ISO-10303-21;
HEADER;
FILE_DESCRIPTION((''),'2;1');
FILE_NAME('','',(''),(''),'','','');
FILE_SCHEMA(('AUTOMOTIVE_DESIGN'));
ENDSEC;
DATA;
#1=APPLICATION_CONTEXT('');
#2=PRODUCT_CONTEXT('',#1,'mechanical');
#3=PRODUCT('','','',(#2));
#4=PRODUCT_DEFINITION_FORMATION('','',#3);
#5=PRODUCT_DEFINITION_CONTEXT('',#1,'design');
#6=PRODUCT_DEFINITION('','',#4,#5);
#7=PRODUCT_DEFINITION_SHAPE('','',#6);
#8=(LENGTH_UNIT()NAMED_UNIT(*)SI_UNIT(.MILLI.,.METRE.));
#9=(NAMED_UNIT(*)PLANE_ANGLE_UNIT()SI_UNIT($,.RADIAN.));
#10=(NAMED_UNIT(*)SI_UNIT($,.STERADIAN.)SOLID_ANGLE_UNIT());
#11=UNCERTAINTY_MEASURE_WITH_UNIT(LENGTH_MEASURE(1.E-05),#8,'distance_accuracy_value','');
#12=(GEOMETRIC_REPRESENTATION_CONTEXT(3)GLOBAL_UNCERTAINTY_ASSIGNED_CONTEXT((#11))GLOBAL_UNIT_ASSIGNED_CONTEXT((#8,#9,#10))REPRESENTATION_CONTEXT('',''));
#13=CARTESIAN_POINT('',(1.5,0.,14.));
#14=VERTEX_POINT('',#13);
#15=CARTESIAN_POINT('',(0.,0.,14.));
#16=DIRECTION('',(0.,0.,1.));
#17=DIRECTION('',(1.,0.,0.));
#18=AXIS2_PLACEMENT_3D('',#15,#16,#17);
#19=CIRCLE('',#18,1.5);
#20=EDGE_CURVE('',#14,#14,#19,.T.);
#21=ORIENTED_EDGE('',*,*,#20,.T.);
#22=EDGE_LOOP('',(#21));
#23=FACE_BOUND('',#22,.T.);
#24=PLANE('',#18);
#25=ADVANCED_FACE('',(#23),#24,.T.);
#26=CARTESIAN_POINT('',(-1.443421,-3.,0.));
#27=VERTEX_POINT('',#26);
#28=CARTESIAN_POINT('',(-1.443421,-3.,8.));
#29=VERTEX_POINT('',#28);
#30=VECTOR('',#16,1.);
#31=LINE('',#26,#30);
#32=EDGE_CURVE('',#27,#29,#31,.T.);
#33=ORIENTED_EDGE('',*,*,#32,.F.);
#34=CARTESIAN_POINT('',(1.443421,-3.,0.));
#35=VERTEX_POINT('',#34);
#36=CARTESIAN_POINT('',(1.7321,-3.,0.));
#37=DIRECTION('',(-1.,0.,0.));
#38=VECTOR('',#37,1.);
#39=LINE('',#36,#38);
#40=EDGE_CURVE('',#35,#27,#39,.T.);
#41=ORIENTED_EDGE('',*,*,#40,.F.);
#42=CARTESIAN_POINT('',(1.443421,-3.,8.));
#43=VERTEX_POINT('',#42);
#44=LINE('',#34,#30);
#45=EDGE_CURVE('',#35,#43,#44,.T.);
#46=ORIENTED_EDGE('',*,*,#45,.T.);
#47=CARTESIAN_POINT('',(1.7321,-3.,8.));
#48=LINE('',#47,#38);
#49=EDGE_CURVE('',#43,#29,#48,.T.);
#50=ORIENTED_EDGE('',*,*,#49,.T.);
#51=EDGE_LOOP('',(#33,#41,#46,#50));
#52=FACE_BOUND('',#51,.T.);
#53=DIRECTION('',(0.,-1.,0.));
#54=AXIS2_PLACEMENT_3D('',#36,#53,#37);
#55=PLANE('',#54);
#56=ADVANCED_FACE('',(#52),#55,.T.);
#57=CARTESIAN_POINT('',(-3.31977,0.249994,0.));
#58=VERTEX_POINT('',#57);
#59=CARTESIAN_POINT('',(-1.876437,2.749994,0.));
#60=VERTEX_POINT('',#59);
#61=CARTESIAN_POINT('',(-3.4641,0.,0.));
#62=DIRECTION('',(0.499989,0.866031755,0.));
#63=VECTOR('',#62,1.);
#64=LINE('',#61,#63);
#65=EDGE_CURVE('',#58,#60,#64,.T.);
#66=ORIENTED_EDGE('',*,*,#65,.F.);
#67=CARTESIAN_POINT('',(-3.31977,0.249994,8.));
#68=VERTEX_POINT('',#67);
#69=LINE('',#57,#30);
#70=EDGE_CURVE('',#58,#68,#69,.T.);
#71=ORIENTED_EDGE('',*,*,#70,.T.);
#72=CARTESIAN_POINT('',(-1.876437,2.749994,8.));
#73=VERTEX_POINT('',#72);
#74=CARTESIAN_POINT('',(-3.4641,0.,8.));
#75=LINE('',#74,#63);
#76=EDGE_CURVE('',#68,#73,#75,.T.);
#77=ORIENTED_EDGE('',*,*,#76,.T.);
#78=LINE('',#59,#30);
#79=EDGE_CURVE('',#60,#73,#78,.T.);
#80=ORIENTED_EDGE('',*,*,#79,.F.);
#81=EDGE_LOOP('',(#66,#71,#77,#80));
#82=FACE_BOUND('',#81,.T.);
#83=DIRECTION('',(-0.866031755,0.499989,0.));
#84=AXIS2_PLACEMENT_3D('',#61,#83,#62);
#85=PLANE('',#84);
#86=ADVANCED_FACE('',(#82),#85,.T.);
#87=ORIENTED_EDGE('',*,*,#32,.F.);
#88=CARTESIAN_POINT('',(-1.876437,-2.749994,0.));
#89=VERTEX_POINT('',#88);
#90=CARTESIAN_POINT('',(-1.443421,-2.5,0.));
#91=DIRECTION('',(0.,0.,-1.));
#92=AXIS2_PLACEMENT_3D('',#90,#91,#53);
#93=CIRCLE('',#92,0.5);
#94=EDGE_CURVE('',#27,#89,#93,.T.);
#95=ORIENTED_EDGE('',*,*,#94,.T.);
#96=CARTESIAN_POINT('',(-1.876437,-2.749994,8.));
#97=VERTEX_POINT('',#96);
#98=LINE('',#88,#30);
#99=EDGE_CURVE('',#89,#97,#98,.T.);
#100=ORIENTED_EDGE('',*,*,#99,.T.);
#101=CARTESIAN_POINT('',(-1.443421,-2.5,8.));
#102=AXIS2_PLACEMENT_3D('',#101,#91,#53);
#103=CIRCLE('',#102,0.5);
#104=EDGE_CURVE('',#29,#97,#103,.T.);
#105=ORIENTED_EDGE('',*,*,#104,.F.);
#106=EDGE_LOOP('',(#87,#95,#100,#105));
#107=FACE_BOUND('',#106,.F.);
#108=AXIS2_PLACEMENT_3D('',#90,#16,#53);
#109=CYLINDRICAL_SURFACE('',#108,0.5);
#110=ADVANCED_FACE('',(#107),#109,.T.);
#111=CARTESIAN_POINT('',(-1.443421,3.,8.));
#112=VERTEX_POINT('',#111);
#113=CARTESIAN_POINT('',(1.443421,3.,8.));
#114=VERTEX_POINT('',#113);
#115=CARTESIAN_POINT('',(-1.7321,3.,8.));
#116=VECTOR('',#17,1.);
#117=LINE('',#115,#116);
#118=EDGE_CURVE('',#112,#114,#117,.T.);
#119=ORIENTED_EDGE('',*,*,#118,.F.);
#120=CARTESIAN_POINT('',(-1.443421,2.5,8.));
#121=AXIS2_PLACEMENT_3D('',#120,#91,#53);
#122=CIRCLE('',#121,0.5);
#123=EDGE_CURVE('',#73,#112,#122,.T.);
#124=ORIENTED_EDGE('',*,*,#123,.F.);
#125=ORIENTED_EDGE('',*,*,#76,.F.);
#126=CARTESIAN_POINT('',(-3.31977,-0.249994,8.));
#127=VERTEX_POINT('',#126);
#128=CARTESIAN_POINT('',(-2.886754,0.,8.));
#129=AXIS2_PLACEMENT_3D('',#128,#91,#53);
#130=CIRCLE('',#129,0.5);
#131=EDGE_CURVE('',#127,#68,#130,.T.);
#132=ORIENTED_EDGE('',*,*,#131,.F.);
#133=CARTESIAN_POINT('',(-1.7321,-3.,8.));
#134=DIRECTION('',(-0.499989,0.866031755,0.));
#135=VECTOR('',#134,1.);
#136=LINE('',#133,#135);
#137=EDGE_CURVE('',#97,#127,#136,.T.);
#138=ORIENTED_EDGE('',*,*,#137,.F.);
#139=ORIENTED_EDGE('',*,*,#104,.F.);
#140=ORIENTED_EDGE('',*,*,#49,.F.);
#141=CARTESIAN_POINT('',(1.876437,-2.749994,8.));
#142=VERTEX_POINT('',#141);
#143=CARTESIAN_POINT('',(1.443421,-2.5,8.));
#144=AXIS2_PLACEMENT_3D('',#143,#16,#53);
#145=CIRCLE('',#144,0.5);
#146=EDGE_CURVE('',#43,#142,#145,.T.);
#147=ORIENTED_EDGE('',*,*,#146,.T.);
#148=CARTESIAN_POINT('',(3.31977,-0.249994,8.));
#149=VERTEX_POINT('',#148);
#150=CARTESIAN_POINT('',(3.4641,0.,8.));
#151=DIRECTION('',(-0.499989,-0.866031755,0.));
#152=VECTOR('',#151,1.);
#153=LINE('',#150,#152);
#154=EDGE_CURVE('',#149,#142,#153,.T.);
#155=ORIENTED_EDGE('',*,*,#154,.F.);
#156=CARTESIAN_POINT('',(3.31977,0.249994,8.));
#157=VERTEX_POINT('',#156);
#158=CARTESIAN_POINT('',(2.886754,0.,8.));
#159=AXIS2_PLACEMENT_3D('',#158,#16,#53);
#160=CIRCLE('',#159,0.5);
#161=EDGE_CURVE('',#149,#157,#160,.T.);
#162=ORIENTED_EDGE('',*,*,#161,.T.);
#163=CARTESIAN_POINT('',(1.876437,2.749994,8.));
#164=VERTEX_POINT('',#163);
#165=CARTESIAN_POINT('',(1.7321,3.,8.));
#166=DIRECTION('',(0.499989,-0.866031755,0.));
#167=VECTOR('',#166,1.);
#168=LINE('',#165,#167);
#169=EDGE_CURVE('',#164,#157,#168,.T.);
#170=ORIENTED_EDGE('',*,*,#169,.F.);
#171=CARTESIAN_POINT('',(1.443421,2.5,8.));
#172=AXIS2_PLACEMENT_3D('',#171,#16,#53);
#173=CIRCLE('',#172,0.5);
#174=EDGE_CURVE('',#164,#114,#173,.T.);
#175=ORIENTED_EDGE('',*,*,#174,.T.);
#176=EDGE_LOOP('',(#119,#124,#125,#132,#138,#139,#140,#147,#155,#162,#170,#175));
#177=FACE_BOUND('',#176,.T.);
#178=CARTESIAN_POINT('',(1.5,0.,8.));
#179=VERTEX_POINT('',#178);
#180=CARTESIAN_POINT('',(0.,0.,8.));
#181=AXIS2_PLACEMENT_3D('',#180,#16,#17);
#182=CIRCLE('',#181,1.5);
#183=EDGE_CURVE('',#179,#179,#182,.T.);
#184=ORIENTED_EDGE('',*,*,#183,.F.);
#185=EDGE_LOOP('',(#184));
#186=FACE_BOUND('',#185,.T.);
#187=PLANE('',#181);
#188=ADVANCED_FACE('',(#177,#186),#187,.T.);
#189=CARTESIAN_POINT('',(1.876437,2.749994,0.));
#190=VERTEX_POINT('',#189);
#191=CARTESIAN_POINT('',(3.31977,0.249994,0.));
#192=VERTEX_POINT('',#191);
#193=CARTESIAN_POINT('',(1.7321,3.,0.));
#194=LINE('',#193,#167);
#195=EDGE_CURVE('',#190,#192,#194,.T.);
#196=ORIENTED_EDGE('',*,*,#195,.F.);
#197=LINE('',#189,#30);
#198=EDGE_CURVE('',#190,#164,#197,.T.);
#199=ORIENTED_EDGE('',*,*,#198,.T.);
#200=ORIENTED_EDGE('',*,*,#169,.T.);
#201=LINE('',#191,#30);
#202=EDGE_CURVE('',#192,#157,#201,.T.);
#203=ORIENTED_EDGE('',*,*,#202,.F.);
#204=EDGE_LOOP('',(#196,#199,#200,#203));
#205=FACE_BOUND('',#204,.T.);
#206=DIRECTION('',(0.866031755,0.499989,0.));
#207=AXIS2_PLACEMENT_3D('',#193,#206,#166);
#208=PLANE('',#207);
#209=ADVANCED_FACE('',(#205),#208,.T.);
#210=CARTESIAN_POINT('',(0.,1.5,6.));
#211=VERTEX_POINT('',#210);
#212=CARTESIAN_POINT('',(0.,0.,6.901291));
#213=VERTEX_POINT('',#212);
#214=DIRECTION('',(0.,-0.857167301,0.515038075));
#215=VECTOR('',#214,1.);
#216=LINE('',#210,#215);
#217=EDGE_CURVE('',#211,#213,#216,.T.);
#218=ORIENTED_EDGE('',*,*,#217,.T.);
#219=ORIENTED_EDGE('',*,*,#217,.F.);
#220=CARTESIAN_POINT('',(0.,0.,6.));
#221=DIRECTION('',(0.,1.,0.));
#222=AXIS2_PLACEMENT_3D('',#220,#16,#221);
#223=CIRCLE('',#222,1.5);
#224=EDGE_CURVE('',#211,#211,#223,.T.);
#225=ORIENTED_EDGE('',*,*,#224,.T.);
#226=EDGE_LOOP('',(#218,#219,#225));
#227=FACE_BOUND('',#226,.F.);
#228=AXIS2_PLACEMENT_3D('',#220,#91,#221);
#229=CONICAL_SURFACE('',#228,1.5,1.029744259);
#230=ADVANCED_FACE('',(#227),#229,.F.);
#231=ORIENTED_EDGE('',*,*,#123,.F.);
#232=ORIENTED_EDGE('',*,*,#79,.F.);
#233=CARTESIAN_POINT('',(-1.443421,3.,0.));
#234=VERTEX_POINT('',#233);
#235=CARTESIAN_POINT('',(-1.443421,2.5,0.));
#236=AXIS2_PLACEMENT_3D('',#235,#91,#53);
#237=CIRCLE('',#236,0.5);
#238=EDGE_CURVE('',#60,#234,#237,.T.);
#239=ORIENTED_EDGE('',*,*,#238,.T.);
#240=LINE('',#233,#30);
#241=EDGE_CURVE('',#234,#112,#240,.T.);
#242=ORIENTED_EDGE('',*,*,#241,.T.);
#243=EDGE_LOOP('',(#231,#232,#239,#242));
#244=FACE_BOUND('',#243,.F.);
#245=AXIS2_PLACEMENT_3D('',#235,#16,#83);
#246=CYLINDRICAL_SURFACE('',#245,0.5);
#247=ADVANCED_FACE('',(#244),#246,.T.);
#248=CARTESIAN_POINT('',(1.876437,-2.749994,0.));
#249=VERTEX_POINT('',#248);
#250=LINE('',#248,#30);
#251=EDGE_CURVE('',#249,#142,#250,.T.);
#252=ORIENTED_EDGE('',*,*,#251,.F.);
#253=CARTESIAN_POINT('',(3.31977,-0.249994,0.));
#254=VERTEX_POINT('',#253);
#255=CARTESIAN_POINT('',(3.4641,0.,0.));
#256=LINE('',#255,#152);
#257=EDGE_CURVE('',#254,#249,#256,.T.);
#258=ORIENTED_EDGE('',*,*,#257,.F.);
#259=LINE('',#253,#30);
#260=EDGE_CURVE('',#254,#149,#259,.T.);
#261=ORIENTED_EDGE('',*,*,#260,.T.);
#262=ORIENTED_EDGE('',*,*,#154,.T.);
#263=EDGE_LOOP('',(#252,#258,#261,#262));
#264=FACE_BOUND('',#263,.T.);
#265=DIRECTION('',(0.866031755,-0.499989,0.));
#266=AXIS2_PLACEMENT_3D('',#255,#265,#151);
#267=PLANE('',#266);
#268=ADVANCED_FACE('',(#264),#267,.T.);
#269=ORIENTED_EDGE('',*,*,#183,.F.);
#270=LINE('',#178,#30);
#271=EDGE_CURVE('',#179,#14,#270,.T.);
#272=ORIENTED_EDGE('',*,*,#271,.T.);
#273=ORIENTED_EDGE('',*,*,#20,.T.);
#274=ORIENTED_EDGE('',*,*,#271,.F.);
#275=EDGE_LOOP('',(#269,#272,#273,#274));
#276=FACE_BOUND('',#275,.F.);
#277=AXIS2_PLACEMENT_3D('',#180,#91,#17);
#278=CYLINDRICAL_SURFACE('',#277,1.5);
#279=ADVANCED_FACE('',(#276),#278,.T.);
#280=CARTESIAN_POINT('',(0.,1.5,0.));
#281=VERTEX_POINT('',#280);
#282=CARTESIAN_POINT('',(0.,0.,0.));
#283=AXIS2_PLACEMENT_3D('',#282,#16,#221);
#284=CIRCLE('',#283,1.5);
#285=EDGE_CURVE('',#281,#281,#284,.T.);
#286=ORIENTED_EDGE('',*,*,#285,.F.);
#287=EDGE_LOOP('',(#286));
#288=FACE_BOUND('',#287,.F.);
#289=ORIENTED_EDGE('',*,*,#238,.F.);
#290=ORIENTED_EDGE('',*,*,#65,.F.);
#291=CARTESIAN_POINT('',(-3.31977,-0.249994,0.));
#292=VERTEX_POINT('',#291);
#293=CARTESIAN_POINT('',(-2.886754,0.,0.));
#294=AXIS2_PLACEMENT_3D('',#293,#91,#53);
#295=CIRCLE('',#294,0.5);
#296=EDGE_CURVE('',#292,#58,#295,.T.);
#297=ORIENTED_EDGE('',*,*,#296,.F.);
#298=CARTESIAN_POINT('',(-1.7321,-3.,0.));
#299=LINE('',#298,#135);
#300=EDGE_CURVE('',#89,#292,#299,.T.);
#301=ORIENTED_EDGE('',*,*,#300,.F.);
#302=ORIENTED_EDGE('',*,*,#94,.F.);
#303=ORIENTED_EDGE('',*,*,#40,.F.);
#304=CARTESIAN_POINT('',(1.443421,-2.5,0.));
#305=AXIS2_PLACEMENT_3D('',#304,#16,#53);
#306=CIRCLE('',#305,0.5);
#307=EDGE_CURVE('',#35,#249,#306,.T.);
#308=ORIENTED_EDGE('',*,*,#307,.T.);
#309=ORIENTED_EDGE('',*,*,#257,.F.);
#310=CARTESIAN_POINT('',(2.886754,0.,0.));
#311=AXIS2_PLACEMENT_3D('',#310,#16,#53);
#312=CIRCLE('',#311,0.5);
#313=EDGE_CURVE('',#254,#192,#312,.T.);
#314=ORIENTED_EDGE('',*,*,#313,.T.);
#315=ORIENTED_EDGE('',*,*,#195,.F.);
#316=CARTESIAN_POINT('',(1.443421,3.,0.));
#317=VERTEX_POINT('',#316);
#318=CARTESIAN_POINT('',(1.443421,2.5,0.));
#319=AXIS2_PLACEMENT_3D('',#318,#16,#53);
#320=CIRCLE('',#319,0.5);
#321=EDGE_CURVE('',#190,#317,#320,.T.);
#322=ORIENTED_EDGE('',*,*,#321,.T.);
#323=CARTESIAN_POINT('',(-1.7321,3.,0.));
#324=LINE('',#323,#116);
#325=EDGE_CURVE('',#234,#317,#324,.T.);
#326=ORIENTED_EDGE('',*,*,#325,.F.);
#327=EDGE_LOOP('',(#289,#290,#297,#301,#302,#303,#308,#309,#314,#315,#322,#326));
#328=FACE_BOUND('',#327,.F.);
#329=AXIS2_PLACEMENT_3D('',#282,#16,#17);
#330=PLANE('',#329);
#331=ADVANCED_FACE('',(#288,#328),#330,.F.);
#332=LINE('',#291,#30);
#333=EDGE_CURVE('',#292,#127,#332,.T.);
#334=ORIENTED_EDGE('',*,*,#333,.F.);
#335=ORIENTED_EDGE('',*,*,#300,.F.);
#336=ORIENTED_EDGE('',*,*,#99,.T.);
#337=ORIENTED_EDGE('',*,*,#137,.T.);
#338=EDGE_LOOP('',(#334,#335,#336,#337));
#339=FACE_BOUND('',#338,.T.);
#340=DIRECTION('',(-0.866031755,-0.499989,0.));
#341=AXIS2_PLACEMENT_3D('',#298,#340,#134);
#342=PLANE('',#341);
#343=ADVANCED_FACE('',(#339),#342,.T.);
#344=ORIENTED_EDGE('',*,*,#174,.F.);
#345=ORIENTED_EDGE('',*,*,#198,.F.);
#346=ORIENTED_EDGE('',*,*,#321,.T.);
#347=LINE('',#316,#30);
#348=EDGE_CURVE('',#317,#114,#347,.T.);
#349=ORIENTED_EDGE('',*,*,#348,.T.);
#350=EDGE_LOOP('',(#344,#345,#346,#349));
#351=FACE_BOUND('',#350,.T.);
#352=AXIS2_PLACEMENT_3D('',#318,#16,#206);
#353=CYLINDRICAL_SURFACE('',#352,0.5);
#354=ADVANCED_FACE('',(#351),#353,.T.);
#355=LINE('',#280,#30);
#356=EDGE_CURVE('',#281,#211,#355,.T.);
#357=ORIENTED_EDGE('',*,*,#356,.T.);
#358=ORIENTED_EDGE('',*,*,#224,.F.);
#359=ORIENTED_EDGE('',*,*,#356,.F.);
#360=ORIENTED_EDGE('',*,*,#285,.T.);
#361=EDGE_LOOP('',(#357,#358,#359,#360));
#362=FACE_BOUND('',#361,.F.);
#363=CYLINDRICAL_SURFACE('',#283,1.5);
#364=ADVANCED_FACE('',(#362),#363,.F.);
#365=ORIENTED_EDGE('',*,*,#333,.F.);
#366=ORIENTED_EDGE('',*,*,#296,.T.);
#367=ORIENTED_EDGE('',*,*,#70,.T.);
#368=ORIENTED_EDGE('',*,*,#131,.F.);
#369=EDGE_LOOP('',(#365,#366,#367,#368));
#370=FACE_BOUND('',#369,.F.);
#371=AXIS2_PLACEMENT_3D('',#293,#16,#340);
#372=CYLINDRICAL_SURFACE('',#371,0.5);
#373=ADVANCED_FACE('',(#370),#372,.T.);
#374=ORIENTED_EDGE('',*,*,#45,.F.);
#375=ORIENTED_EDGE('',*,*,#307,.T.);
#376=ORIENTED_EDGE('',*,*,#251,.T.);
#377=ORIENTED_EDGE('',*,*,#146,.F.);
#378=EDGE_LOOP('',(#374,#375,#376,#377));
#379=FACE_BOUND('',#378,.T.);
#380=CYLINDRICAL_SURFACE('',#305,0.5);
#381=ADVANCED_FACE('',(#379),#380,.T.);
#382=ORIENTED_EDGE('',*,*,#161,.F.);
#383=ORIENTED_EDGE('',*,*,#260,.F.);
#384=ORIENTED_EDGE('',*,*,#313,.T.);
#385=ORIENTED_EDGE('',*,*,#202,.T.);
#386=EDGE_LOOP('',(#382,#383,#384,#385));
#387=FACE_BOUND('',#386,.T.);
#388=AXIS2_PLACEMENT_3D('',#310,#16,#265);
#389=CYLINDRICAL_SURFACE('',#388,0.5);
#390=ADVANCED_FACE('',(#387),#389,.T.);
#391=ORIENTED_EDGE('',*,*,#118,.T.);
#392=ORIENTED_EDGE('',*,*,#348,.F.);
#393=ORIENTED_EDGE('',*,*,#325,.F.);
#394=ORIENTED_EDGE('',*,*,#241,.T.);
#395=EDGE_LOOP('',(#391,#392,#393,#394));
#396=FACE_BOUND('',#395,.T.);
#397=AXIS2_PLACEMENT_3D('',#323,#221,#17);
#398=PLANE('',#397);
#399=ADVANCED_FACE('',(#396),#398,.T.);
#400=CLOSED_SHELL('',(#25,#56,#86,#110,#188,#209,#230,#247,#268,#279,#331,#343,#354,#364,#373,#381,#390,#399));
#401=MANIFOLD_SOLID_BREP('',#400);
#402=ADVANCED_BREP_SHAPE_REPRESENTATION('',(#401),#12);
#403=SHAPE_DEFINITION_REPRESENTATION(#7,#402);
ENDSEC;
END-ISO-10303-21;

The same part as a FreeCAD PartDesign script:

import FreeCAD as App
import Part
import Sketcher
from FreeCAD import Vector
Q = App.Units.Quantity


def edges_at(feature, points):
    """Names of the edges that pass closest to the given points."""
    edges = feature.Shape.Edges
    near = lambda p: min(range(len(edges)), key=lambda i: edges[i].distToShape(Part.Vertex(*p))[0])
    return sorted({f"Edge{near(p) + 1}" for p in points})


def add_polygon(sketch, points):
    """Adds a closed chain of lines whose ends are joined by coincident constraints."""
    first, n = sketch.GeometryCount, len(points)
    for a, b in zip(points, points[1:] + points[:1]):
        sketch.addGeometry(Part.LineSegment(App.Vector(*a, 0), App.Vector(*b, 0)), False)
    for i in range(n):
        sketch.addConstraint(Sketcher.Constraint("Coincident", first + i, 2, first + (i + 1) % n, 1))

doc = App.newDocument("Part")
body = doc.addObject("PartDesign::Body", "Body")

# Sketch on XY plane
sketch1 = body.newObject("Sketcher::SketchObject", "Sketch")
sketch1.AttachmentSupport = (doc.getObject("XY_Plane"), [""])
sketch1.MapMode = "FlatFace"
add_polygon(sketch1, [(-1.7321, -3), (1.7321, -3), (3.4641, 0), (1.7321, 3), (-1.7321, 3), (-3.4641, 0)])  # lines 0-5
sketch1.addConstraint(Sketcher.Constraint("Horizontal", 0))
sketch1.addConstraint(Sketcher.Constraint("Horizontal", 3))
sketch1.addConstraint(Sketcher.Constraint("Symmetric", 0, 2, 3, 2, -1, 1))
sketch1.addConstraint(Sketcher.Constraint("Symmetric", 1, 2, 4, 2, -1, 1))
sketch1.addConstraint(Sketcher.Constraint("PointOnObject", 1, 2, -1))
sketch1.addConstraint(Sketcher.Constraint("Parallel", 2, 5))
sketch1.addConstraint(Sketcher.Constraint("Vertical", 0, 2, 2, 2))
sketch1.addConstraint(Sketcher.Constraint("DistanceY", 0, 2, -1, 1, 3.0))
sketch1.addConstraint(Sketcher.Constraint("Angle", 1, Q("60.0007 deg")))
sketch1.addConstraint(Sketcher.Constraint("DistanceX", 0, 1, 0, 2, 3.4642))
pad1 = body.newObject("PartDesign::Pad", "Pad")
pad1.Profile = sketch1
pad1.Length = 8

# Sketch on XY plane
sketch2 = body.newObject("Sketcher::SketchObject", "Sketch001")
sketch2.AttachmentSupport = (doc.getObject("XY_Plane"), [""])
sketch2.MapMode = "FlatFace"
sketch2.AttachmentOffset = App.Placement(Vector(0, 0, 8), App.Rotation())
sketch2.addGeometry(Part.Circle(Vector(0, 0, 0), Vector(0, 0, 1), 1.5), False)
sketch2.addConstraint(Sketcher.Constraint("Coincident", 0, 3, -1, 1))
sketch2.addConstraint(Sketcher.Constraint("Diameter", 0, 3.0))
pad2 = body.newObject("PartDesign::Pad", "Pad001")
pad2.Profile = sketch2
pad2.Length = 6

# Sketch on XY plane
sketch3 = body.newObject("Sketcher::SketchObject", "Sketch002")
sketch3.AttachmentSupport = (doc.getObject("XY_Plane"), [""])
sketch3.MapMode = "FlatFace"
sketch3.addGeometry(Part.Circle(Vector(0, 0, 0), Vector(0, 0, 1), 1.5), False)
sketch3.addConstraint(Sketcher.Constraint("Coincident", 0, 3, -1, 1))
sketch3.addConstraint(Sketcher.Constraint("Diameter", 0, 3.0))
doc.recompute()
hole = body.newObject("PartDesign::Hole", "Hole")
hole.Profile = sketch3
hole.ThreadType = "None"
hole.Diameter = 3
hole.DepthType = "Dimension"
hole.Depth = 6
hole.DrillPoint = "Angled"
hole.DrillPointAngle = 118
hole.Reversed = True
doc.recompute()

fillet = body.newObject("PartDesign::Fillet", "Fillet")
fillet.Base = (hole, edges_at(hole, [
    (-3.464, 0, 4),
    (-1.732, -3, 4),
    (-1.732, 3, 4),
    (1.732, 3, 4),
    (3.464, 0, 4),
    (1.732, -3, 4),
]))
fillet.Radius = 0.5

doc.recompute()
